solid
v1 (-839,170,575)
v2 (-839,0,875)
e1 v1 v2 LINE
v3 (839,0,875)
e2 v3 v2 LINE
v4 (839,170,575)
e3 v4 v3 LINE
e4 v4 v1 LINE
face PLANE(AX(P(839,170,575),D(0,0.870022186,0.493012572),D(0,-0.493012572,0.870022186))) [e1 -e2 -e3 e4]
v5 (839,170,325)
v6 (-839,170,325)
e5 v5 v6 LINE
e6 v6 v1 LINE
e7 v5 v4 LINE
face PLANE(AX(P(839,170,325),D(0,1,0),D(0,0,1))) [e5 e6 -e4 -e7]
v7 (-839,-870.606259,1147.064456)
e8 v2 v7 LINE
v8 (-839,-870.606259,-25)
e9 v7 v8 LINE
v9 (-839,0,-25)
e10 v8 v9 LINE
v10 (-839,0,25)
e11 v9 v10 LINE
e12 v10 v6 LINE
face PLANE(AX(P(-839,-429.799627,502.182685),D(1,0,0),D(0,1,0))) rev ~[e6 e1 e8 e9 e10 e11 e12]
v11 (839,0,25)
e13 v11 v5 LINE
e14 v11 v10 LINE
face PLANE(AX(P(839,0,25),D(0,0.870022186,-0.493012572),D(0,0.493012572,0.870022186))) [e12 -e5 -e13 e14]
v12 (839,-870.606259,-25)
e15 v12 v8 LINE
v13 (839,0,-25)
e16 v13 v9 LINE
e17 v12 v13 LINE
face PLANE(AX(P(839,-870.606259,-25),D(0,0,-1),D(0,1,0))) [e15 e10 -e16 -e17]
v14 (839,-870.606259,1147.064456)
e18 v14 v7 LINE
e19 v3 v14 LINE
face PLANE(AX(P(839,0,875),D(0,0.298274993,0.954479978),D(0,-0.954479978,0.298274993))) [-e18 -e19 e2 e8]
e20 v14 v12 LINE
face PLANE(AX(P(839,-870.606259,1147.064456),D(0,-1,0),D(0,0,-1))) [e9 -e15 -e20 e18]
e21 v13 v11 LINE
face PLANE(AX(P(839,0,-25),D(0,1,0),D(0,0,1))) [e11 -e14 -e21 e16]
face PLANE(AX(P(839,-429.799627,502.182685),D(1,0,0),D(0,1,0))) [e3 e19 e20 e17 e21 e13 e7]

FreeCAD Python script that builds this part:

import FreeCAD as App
import Part
import Sketcher
from FreeCAD import Vector

doc = App.newDocument("Part")
body = doc.addObject("PartDesign::Body", "Body")

# Sketch on YZ plane
sketch1 = doc.addObject("Sketcher::SketchObject", "Sketch")
body.addObject(sketch1)
sketch1.AttachmentSupport = (doc.YZ_Plane, [""])
sketch1.MapMode = "FlatFace"
sketch1.addGeometry([
    Part.LineSegment(Vector(0, 25, 0), Vector(0, -25, 0)),  # 0
    Part.LineSegment(Vector(0, -25, 0), Vector(597.705221, -25, 0)),  # 1
    Part.LineSegment(Vector(597.705221, -25, 0), Vector(820, 618.75, 0)),  # 2
    Part.LineSegment(Vector(820, 618.75, 0), Vector(0, 875, 0)),  # 3
    Part.LineSegment(Vector(0, 875, 0), Vector(170, 575, 0)),  # 4
    Part.LineSegment(Vector(170, 575, 0), Vector(170, 325, 0)),  # 5
    Part.LineSegment(Vector(170, 325, 0), Vector(0, 25, 0)),  # 6
], False)
sketch1.addConstraint([
    Sketcher.Constraint("Coincident", 0, 2, 1, 1),
    Sketcher.Constraint("Coincident", 1, 2, 2, 1),
    Sketcher.Constraint("Coincident", 2, 2, 3, 1),
    Sketcher.Constraint("Coincident", 3, 2, 4, 1),
    Sketcher.Constraint("Coincident", 4, 2, 5, 1),
    Sketcher.Constraint("Coincident", 5, 2, 6, 1),
    Sketcher.Constraint("Coincident", 6, 2, 0, 1),
    Sketcher.Constraint("Vertical", 0),
    Sketcher.Constraint("Horizontal", 1),
    Sketcher.Constraint("Vertical", 5),
    Sketcher.Constraint("Symmetric", 0, 2, 6, 2, -1, 1),
    Sketcher.Constraint("PointOnObject", 3, 2, -2),
    Sketcher.Constraint("Equal", 4, 6),
    Sketcher.Constraint("DistanceY", 0, 2, 0, 1, 50.0),
    Sketcher.Constraint("DistanceY", 5, 2, 5, 1, 250.0),
    Sketcher.Constraint("DistanceX", -1, 1, 2, 2, 820.0),
    Sketcher.Constraint("DistanceY", -1, 1, 3, 2, 875.0),
    Sketcher.Constraint("DistanceX", -1, 1, 4, 2, 170.0),
    Sketcher.Constraint("DistanceY", -1, 1, 2, 2, 618.75),
    Sketcher.Constraint("DistanceX", 1, 1, 1, 2, 597.705221),
])
pad1 = doc.addObject("PartDesign::Pad", "Pad")
body.addObject(pad1)
pad1.Profile = sketch1
pad1.Length = 1678
body2 = doc.addObject("PartDesign::Body", "Body001")

# Sketch on YZ plane
sketch2 = doc.addObject("Sketcher::SketchObject", "Sketch001")
body2.addObject(sketch2)
sketch2.AttachmentSupport = (doc.getObject("YZ_Plane001"), [""])
sketch2.MapMode = "FlatFace"
sketch2.AttachmentOffset = App.Placement(Vector(0, 0, 839), App.Rotation())
sketch2.addGeometry([
    Part.LineSegment(Vector(170, 575, 0), Vector(0, 875, 0)),  # 0
    Part.LineSegment(Vector(0, 875, 0), Vector(-870.606259, 1147.064456, 0)),  # 1
    Part.LineSegment(Vector(-870.606259, 1147.064456, 0), Vector(-870.606259, -25, 0)),  # 2
    Part.LineSegment(Vector(-870.606259, -25, 0), Vector(0, -25, 0)),  # 3
    Part.LineSegment(Vector(0, -25, 0), Vector(0, 25, 0)),  # 4
    Part.LineSegment(Vector(0, 25, 0), Vector(170, 325, 0)),  # 5
    Part.LineSegment(Vector(170, 325, 0), Vector(170, 575, 0)),  # 6
], False)
sketch2.addConstraint([
    Sketcher.Constraint("Coincident", 0, 2, 1, 1),
    Sketcher.Constraint("Coincident", 1, 2, 2, 1),
    Sketcher.Constraint("Coincident", 2, 2, 3, 1),
    Sketcher.Constraint("Coincident", 3, 2, 4, 1),
    Sketcher.Constraint("Coincident", 4, 2, 5, 1),
    Sketcher.Constraint("Coincident", 5, 2, 6, 1),
    Sketcher.Constraint("Coincident", 6, 2, 0, 1),
    Sketcher.Constraint("Vertical", 2),
    Sketcher.Constraint("Horizontal", 3),
    Sketcher.Constraint("Vertical", 4),
    Sketcher.Constraint("Vertical", 6),
    Sketcher.Constraint("Symmetric", 3, 2, 4, 2, -1, 1),
    Sketcher.Constraint("PointOnObject", 0, 2, -2),
    Sketcher.Constraint("Equal", 0, 5),
    Sketcher.Constraint("DistanceY", 4, 1, 4, 2, 50.0),
    Sketcher.Constraint("DistanceY", 6, 1, 6, 2, 250.0),
    Sketcher.Constraint("DistanceY", -1, 1, 0, 2, 875.0),
    Sketcher.Constraint("DistanceX", -1, 1, 5, 2, 170.0),
    Sketcher.Constraint("DistanceX", 3, 1, 3, 2, 870.606259),
    Sketcher.Constraint("DistanceY", 2, 2, 2, 1, 1172.064456),
])
pad2 = doc.addObject("PartDesign::Pad", "Pad001")
body2.addObject(pad2)
pad2.Profile = sketch2
pad2.Length = 1678
pad2.Reversed = True
body.Visibility = False

doc.recompute()
